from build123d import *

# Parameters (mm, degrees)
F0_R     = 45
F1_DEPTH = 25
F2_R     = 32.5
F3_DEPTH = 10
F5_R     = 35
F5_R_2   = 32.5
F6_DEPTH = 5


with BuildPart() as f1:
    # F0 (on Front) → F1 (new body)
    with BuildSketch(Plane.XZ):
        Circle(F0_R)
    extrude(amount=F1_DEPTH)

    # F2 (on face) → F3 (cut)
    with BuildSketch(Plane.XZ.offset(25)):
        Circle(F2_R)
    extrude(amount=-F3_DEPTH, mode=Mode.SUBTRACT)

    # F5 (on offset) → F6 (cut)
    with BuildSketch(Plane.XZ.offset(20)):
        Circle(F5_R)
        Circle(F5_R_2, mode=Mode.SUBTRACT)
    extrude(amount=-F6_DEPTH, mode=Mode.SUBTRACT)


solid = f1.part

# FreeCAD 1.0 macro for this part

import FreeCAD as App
import Part
import Sketcher
from FreeCAD import Vector

doc = App.newDocument("Part")
body = doc.addObject("PartDesign::Body", "Body")

# Sketch on XZ plane
sketch1 = body.newObject("Sketcher::SketchObject", "Sketch")
sketch1.AttachmentSupport = (doc.getObject("XZ_Plane"), [""])
sketch1.MapMode = "FlatFace"
sketch1.addGeometry(Part.Circle(Vector(0, 0, 0), Vector(0, 0, 1), 45), False)
sketch1.addConstraint([
    Sketcher.Constraint("Coincident", 0, 3, -1, 1),
    Sketcher.Constraint("Diameter", 0, 90.0),
])
pad1 = body.newObject("PartDesign::Pad", "Pad")
pad1.Profile = sketch1
pad1.Length = 25

# Sketch on XZ plane
sketch2 = body.newObject("Sketcher::SketchObject", "Sketch001")
sketch2.AttachmentSupport = (doc.getObject("XZ_Plane"), [""])
sketch2.MapMode = "FlatFace"
sketch2.AttachmentOffset = App.Placement(Vector(0, 0, 25), App.Rotation())
sketch2.addGeometry(Part.Circle(Vector(0, 0, 0), Vector(0, 0, 1), 32.5), False)
sketch2.addConstraint([
    Sketcher.Constraint("Coincident", 0, 3, -1, 1),
    Sketcher.Constraint("Diameter", 0, 65.0),
])
pocket1 = body.newObject("PartDesign::Pocket", "Pocket")
pocket1.Profile = sketch2
pocket1.Length = 10

# Sketch on XZ plane
sketch3 = body.newObject("Sketcher::SketchObject", "Sketch002")
sketch3.AttachmentSupport = (doc.getObject("XZ_Plane"), [""])
sketch3.MapMode = "FlatFace"
sketch3.AttachmentOffset = App.Placement(Vector(0, 0, 20), App.Rotation())
sketch3.addGeometry([
    Part.Circle(Vector(0, 0, 0), Vector(0, 0, 1), 35),
    Part.Circle(Vector(0, 0, 0), Vector(0, 0, 1), 32.5),
], False)
sketch3.addConstraint([
    Sketcher.Constraint("Coincident", 0, 3, -1, 1),
    Sketcher.Constraint("Coincident", 1, 3, -1, 1),
    Sketcher.Constraint("Diameter", 0, 70.0),
    Sketcher.Constraint("Diameter", 1, 65.0),
])
pocket2 = body.newObject("PartDesign::Pocket", "Pocket001")
pocket2.Profile = sketch3
pocket2.Length = 5

doc.recompute()
